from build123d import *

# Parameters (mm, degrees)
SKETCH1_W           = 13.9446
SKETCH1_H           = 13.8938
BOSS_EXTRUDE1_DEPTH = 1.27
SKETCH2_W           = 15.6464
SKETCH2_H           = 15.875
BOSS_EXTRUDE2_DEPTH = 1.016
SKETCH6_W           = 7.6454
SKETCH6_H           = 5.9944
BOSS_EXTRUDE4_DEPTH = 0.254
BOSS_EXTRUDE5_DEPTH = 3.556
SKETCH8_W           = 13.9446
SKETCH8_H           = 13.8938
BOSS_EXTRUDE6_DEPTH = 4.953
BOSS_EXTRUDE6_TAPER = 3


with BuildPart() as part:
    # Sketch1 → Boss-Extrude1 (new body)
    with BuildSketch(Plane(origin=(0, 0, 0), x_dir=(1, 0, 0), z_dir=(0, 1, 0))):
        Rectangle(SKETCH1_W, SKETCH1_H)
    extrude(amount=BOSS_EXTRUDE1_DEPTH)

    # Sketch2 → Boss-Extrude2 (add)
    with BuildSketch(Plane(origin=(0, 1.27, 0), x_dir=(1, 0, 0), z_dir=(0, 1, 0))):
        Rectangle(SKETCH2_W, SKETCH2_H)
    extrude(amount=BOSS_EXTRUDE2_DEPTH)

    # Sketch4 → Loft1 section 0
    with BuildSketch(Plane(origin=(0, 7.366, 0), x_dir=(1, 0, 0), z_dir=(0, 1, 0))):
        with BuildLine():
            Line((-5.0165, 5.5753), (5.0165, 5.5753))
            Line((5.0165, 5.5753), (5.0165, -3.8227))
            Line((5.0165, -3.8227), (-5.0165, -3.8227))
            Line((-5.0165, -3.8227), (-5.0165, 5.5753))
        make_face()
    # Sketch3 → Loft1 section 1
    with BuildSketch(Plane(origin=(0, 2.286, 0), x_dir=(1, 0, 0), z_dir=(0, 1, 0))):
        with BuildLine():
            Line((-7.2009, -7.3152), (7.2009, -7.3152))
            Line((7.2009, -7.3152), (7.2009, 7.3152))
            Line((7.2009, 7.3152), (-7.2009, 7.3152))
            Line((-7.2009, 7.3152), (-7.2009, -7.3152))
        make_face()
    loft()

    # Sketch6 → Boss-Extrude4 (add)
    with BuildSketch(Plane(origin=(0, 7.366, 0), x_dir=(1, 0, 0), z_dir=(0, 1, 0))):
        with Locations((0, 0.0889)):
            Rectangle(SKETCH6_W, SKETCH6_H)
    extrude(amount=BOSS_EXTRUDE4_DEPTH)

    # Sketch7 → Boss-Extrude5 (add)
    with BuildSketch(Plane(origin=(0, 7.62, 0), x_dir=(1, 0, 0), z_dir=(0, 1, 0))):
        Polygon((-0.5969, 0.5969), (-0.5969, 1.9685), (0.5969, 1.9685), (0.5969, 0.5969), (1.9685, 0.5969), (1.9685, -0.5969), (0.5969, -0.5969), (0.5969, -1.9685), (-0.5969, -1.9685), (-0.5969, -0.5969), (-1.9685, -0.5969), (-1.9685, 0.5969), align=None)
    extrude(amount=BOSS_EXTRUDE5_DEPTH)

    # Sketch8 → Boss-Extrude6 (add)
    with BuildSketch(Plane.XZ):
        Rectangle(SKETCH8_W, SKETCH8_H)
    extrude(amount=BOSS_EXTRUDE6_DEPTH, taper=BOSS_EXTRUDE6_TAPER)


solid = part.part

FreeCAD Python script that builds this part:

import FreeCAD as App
import Part
import Sketcher
from FreeCAD import Vector
Q = App.Units.Quantity


def add_polygon(sketch, points):
    """Adds a closed chain of lines whose ends are joined by coincident constraints."""
    first, n = sketch.GeometryCount, len(points)
    for a, b in zip(points, points[1:] + points[:1]):
        sketch.addGeometry(Part.LineSegment(App.Vector(*a, 0), App.Vector(*b, 0)), False)
    for i in range(n):
        sketch.addConstraint(Sketcher.Constraint("Coincident", first + i, 2, first + (i + 1) % n, 1))

doc = App.newDocument("Part")
params = doc.addObject("Spreadsheet::Sheet", "Params")
for row, (alias, value) in enumerate([
    ("sketch1_width", "0.549 in"),
    ("sketch1_height", "0.547 in"),
    ("pad1_length", "0.05 in"),
    ("sketch2_width", "0.616 in"),
    ("sketch2_height", "0.625 in"),
    ("pad2_length", "0.04 in"),
    ("sketch3_height", "0.37 in"),
    ("sketch3_width", "0.395 in"),
    ("sketch4_width", "0.567 in"),
    ("sketch4_height", "0.576 in"),
    ("sketch5_width", "0.301 in"),
    ("sketch5_height", "0.236 in"),
    ("pad3_length", "0.01 in"),
    ("sketch6_width", "0.054 in"),
    ("sketch6_width2", "0.047 in"),
    ("pad4_length", "0.14 in"),
    ("sketch7_width", "0.549 in"),
    ("sketch7_height", "0.547 in"),
    ("pad5_length", "0.195 in"),
    ("pad5_taper", "-3 deg"),
], start=1):
    params.set(f"A{row}", alias)
    params.set(f"B{row}", "=" + value)
    params.setAlias(f"B{row}", alias)

body = doc.addObject("PartDesign::Body", "Body")

sketch1 = body.newObject("Sketcher::SketchObject", "Sketch")
sketch1.AttachmentSupport = (doc.getObject("XZ_Plane"), [""])
sketch1.MapMode = "FlatFace"
add_polygon(sketch1, [(-7, -7), (-7, 7), (7, 7), (7, -7)])
sketch1.addConstraint(Sketcher.Constraint("Vertical", 0))
sketch1.addConstraint(Sketcher.Constraint("Horizontal", 1))
sketch1.addConstraint(Sketcher.Constraint("Vertical", 2))
sketch1.addConstraint(Sketcher.Constraint("Horizontal", 3))
sketch1.addConstraint(Sketcher.Constraint("Symmetric", 0, 2, 2, 2, -1, 1))
sketch1.addConstraint(Sketcher.Constraint("DistanceX", 1, 1, 1, 2, Q("0.549 in")))
sketch1.addConstraint(Sketcher.Constraint("DistanceY", 0, 1, 0, 2, Q("0.547 in")))
sketch1.setExpression("Constraints[9]", "Params.sketch1_width")
sketch1.setExpression("Constraints[10]", "Params.sketch1_height")
pad1 = body.newObject("PartDesign::Pad", "Pad")
pad1.Profile = sketch1
pad1.setExpression("Length", "Params.pad1_length")
pad1.Reversed = True

sketch2 = body.newObject("Sketcher::SketchObject", "Sketch001")
sketch2.AttachmentSupport = (doc.getObject("XZ_Plane"), [""])
sketch2.MapMode = "FlatFace"
sketch2.AttachmentOffset = App.Placement(Vector(0, 0, -0.05 * 25.4), App.Rotation())
add_polygon(sketch2, [(-8, -8), (-8, 8), (8, 8), (8, -8)])
sketch2.addConstraint(Sketcher.Constraint("Vertical", 0))
sketch2.addConstraint(Sketcher.Constraint("Horizontal", 1))
sketch2.addConstraint(Sketcher.Constraint("Vertical", 2))
sketch2.addConstraint(Sketcher.Constraint("Horizontal", 3))
sketch2.addConstraint(Sketcher.Constraint("Symmetric", 0, 2, 2, 2, -1, 1))
sketch2.addConstraint(Sketcher.Constraint("DistanceX", 1, 1, 1, 2, Q("0.616 in")))
sketch2.addConstraint(Sketcher.Constraint("DistanceY", 0, 1, 0, 2, Q("0.625 in")))
sketch2.setExpression("Constraints[9]", "Params.sketch2_width")
sketch2.setExpression("Constraints[10]", "Params.sketch2_height")
pad2 = body.newObject("PartDesign::Pad", "Pad001")
pad2.Profile = sketch2
pad2.setExpression("Length", "Params.pad2_length")
pad2.Reversed = True

sketch3 = body.newObject("Sketcher::SketchObject", "Sketch002")
sketch3.AttachmentSupport = (doc.getObject("XZ_Plane"), [""])
sketch3.MapMode = "FlatFace"
sketch3.AttachmentOffset = App.Placement(Vector(0, 0, -0.29 * 25.4), App.Rotation())
add_polygon(sketch3, [(5, -6), (-5, -6), (-5, 4), (5, 4)])
sketch3.addConstraint(Sketcher.Constraint("Horizontal", 0))
sketch3.addConstraint(Sketcher.Constraint("Vertical", 1))
sketch3.addConstraint(Sketcher.Constraint("Horizontal", 2))
sketch3.addConstraint(Sketcher.Constraint("Vertical", 3))
sketch3.addConstraint(Sketcher.Constraint("DistanceY", 1, 1, 1, 2, Q("0.37 in")))
sketch3.addConstraint(Sketcher.Constraint("DistanceX", 0, 2, 0, 1, Q("0.395 in")))
sketch3.addConstraint(Sketcher.Constraint("DistanceX", 0, 2, -1, 1, Q("0.1975 in")))
sketch3.addConstraint(Sketcher.Constraint("DistanceY", 0, 2, -1, 1, Q("0.2195 in")))
sketch3.setExpression("Constraints[8]", "Params.sketch3_height")
sketch3.setExpression("Constraints[9]", "Params.sketch3_width")

sketch4 = body.newObject("Sketcher::SketchObject", "Sketch003")
sketch4.AttachmentSupport = (doc.getObject("XZ_Plane"), [""])
sketch4.MapMode = "FlatFace"
sketch4.AttachmentOffset = App.Placement(Vector(0, 0, -0.09 * 25.4), App.Rotation())
add_polygon(sketch4, [(-7, 7), (7, 7), (7, -7), (-7, -7)])
sketch4.addConstraint(Sketcher.Constraint("Horizontal", 0))
sketch4.addConstraint(Sketcher.Constraint("Vertical", 1))
sketch4.addConstraint(Sketcher.Constraint("Horizontal", 2))
sketch4.addConstraint(Sketcher.Constraint("Vertical", 3))
sketch4.addConstraint(Sketcher.Constraint("Symmetric", 0, 2, 2, 2, -1, 1))
sketch4.addConstraint(Sketcher.Constraint("DistanceX", 0, 1, 0, 2, Q("0.567 in")))
sketch4.addConstraint(Sketcher.Constraint("DistanceY", 1, 2, 1, 1, Q("0.576 in")))
sketch4.setExpression("Constraints[9]", "Params.sketch4_width")
sketch4.setExpression("Constraints[10]", "Params.sketch4_height")

additiveloft = body.newObject("PartDesign::AdditiveLoft", "AdditiveLoft")
additiveloft.Profile = sketch3
additiveloft.Sections = [sketch4]

sketch5 = body.newObject("Sketcher::SketchObject", "Sketch004")
sketch5.AttachmentSupport = (doc.getObject("XZ_Plane"), [""])
sketch5.MapMode = "FlatFace"
sketch5.AttachmentOffset = App.Placement(Vector(0, 0, -0.29 * 25.4), App.Rotation())
add_polygon(sketch5, [(-4, -3), (-4, 3), (4, 3), (4, -3)])
sketch5.addConstraint(Sketcher.Constraint("Vertical", 0))
sketch5.addConstraint(Sketcher.Constraint("Horizontal", 1))
sketch5.addConstraint(Sketcher.Constraint("Vertical", 2))
sketch5.addConstraint(Sketcher.Constraint("Horizontal", 3))
sketch5.addConstraint(Sketcher.Constraint("DistanceX", 1, 1, 1, 2, Q("0.301 in")))
sketch5.addConstraint(Sketcher.Constraint("DistanceY", 0, 1, 0, 2, Q("0.236 in")))
sketch5.addConstraint(Sketcher.Constraint("DistanceX", 0, 2, -1, 1, Q("0.1505 in")))
sketch5.addConstraint(Sketcher.Constraint("DistanceY", -1, 1, 0, 2, Q("0.1145 in")))
sketch5.setExpression("Constraints[8]", "Params.sketch5_width")
sketch5.setExpression("Constraints[9]", "Params.sketch5_height")
pad3 = body.newObject("PartDesign::Pad", "Pad002")
pad3.Profile = sketch5
pad3.setExpression("Length", "Params.pad3_length")
pad3.Reversed = True

sketch6 = body.newObject("Sketcher::SketchObject", "Sketch005")
sketch6.AttachmentSupport = (doc.getObject("XZ_Plane"), [""])
sketch6.MapMode = "FlatFace"
sketch6.AttachmentOffset = App.Placement(Vector(0, 0, -0.3 * 25.4), App.Rotation())
add_polygon(sketch6, [(-0.6, -2), (-0.6, -0.6), (-2, -0.6), (-2, 0.6), (-0.6, 0.6), (-0.6, 2), (0.6, 2), (0.6, 0.6), (2, 0.6), (2, -0.6), (0.6, -0.6), (0.6, -2)])
sketch6.addConstraint(Sketcher.Constraint("Vertical", 0))
sketch6.addConstraint(Sketcher.Constraint("Horizontal", 1))
sketch6.addConstraint(Sketcher.Constraint("Vertical", 2))
sketch6.addConstraint(Sketcher.Constraint("Horizontal", 3))
sketch6.addConstraint(Sketcher.Constraint("Vertical", 4))
sketch6.addConstraint(Sketcher.Constraint("Horizontal", 5))
sketch6.addConstraint(Sketcher.Constraint("Vertical", 6))
sketch6.addConstraint(Sketcher.Constraint("Horizontal", 7))
sketch6.addConstraint(Sketcher.Constraint("Vertical", 8))
sketch6.addConstraint(Sketcher.Constraint("Horizontal", 9))
sketch6.addConstraint(Sketcher.Constraint("Vertical", 10))
sketch6.addConstraint(Sketcher.Constraint("Horizontal", 11))
sketch6.addConstraint(Sketcher.Constraint("Symmetric", 0, 2, 6, 2, -1, 1))
sketch6.addConstraint(Sketcher.Constraint("Symmetric", 2, 2, 8, 2, -1, 1))
sketch6.addConstraint(Sketcher.Constraint("Symmetric", 4, 2, 10, 2, -1, 1))
sketch6.addConstraint(Sketcher.Constraint("Symmetric", 3, 2, 6, 2, -2))
sketch6.addConstraint(Sketcher.Constraint("Equal", 9, 0))
sketch6.addConstraint(Sketcher.Constraint("Equal", 11, 2))
sketch6.addConstraint(Sketcher.Constraint("DistanceX", 1, 2, 1, 1, Q("0.054 in")))
sketch6.addConstraint(Sketcher.Constraint("DistanceX", 5, 1, 5, 2, Q("0.047 in")))
sketch6.setExpression("Constraints[30]", "Params.sketch6_width")
sketch6.setExpression("Constraints[31]", "Params.sketch6_width2")
pad4 = body.newObject("PartDesign::Pad", "Pad003")
pad4.Profile = sketch6
pad4.setExpression("Length", "Params.pad4_length")
pad4.Reversed = True

sketch7 = body.newObject("Sketcher::SketchObject", "Sketch006")
sketch7.AttachmentSupport = (doc.getObject("XZ_Plane"), [""])
sketch7.MapMode = "FlatFace"
add_polygon(sketch7, [(-7, 7), (-7, -7), (7, -7), (7, 7)])
sketch7.addConstraint(Sketcher.Constraint("Vertical", 0))
sketch7.addConstraint(Sketcher.Constraint("Horizontal", 1))
sketch7.addConstraint(Sketcher.Constraint("Vertical", 2))
sketch7.addConstraint(Sketcher.Constraint("Horizontal", 3))
sketch7.addConstraint(Sketcher.Constraint("Symmetric", 0, 2, 2, 2, -1, 1))
sketch7.addConstraint(Sketcher.Constraint("DistanceX", 1, 1, 1, 2, Q("0.549 in")))
sketch7.addConstraint(Sketcher.Constraint("DistanceY", 0, 2, 0, 1, Q("0.547 in")))
sketch7.setExpression("Constraints[9]", "Params.sketch7_width")
sketch7.setExpression("Constraints[10]", "Params.sketch7_height")
pad5 = body.newObject("PartDesign::Pad", "Pad004")
pad5.Profile = sketch7
pad5.setExpression("Length", "Params.pad5_length")
pad5.setExpression("TaperAngle", "Params.pad5_taper")

doc.recompute()
